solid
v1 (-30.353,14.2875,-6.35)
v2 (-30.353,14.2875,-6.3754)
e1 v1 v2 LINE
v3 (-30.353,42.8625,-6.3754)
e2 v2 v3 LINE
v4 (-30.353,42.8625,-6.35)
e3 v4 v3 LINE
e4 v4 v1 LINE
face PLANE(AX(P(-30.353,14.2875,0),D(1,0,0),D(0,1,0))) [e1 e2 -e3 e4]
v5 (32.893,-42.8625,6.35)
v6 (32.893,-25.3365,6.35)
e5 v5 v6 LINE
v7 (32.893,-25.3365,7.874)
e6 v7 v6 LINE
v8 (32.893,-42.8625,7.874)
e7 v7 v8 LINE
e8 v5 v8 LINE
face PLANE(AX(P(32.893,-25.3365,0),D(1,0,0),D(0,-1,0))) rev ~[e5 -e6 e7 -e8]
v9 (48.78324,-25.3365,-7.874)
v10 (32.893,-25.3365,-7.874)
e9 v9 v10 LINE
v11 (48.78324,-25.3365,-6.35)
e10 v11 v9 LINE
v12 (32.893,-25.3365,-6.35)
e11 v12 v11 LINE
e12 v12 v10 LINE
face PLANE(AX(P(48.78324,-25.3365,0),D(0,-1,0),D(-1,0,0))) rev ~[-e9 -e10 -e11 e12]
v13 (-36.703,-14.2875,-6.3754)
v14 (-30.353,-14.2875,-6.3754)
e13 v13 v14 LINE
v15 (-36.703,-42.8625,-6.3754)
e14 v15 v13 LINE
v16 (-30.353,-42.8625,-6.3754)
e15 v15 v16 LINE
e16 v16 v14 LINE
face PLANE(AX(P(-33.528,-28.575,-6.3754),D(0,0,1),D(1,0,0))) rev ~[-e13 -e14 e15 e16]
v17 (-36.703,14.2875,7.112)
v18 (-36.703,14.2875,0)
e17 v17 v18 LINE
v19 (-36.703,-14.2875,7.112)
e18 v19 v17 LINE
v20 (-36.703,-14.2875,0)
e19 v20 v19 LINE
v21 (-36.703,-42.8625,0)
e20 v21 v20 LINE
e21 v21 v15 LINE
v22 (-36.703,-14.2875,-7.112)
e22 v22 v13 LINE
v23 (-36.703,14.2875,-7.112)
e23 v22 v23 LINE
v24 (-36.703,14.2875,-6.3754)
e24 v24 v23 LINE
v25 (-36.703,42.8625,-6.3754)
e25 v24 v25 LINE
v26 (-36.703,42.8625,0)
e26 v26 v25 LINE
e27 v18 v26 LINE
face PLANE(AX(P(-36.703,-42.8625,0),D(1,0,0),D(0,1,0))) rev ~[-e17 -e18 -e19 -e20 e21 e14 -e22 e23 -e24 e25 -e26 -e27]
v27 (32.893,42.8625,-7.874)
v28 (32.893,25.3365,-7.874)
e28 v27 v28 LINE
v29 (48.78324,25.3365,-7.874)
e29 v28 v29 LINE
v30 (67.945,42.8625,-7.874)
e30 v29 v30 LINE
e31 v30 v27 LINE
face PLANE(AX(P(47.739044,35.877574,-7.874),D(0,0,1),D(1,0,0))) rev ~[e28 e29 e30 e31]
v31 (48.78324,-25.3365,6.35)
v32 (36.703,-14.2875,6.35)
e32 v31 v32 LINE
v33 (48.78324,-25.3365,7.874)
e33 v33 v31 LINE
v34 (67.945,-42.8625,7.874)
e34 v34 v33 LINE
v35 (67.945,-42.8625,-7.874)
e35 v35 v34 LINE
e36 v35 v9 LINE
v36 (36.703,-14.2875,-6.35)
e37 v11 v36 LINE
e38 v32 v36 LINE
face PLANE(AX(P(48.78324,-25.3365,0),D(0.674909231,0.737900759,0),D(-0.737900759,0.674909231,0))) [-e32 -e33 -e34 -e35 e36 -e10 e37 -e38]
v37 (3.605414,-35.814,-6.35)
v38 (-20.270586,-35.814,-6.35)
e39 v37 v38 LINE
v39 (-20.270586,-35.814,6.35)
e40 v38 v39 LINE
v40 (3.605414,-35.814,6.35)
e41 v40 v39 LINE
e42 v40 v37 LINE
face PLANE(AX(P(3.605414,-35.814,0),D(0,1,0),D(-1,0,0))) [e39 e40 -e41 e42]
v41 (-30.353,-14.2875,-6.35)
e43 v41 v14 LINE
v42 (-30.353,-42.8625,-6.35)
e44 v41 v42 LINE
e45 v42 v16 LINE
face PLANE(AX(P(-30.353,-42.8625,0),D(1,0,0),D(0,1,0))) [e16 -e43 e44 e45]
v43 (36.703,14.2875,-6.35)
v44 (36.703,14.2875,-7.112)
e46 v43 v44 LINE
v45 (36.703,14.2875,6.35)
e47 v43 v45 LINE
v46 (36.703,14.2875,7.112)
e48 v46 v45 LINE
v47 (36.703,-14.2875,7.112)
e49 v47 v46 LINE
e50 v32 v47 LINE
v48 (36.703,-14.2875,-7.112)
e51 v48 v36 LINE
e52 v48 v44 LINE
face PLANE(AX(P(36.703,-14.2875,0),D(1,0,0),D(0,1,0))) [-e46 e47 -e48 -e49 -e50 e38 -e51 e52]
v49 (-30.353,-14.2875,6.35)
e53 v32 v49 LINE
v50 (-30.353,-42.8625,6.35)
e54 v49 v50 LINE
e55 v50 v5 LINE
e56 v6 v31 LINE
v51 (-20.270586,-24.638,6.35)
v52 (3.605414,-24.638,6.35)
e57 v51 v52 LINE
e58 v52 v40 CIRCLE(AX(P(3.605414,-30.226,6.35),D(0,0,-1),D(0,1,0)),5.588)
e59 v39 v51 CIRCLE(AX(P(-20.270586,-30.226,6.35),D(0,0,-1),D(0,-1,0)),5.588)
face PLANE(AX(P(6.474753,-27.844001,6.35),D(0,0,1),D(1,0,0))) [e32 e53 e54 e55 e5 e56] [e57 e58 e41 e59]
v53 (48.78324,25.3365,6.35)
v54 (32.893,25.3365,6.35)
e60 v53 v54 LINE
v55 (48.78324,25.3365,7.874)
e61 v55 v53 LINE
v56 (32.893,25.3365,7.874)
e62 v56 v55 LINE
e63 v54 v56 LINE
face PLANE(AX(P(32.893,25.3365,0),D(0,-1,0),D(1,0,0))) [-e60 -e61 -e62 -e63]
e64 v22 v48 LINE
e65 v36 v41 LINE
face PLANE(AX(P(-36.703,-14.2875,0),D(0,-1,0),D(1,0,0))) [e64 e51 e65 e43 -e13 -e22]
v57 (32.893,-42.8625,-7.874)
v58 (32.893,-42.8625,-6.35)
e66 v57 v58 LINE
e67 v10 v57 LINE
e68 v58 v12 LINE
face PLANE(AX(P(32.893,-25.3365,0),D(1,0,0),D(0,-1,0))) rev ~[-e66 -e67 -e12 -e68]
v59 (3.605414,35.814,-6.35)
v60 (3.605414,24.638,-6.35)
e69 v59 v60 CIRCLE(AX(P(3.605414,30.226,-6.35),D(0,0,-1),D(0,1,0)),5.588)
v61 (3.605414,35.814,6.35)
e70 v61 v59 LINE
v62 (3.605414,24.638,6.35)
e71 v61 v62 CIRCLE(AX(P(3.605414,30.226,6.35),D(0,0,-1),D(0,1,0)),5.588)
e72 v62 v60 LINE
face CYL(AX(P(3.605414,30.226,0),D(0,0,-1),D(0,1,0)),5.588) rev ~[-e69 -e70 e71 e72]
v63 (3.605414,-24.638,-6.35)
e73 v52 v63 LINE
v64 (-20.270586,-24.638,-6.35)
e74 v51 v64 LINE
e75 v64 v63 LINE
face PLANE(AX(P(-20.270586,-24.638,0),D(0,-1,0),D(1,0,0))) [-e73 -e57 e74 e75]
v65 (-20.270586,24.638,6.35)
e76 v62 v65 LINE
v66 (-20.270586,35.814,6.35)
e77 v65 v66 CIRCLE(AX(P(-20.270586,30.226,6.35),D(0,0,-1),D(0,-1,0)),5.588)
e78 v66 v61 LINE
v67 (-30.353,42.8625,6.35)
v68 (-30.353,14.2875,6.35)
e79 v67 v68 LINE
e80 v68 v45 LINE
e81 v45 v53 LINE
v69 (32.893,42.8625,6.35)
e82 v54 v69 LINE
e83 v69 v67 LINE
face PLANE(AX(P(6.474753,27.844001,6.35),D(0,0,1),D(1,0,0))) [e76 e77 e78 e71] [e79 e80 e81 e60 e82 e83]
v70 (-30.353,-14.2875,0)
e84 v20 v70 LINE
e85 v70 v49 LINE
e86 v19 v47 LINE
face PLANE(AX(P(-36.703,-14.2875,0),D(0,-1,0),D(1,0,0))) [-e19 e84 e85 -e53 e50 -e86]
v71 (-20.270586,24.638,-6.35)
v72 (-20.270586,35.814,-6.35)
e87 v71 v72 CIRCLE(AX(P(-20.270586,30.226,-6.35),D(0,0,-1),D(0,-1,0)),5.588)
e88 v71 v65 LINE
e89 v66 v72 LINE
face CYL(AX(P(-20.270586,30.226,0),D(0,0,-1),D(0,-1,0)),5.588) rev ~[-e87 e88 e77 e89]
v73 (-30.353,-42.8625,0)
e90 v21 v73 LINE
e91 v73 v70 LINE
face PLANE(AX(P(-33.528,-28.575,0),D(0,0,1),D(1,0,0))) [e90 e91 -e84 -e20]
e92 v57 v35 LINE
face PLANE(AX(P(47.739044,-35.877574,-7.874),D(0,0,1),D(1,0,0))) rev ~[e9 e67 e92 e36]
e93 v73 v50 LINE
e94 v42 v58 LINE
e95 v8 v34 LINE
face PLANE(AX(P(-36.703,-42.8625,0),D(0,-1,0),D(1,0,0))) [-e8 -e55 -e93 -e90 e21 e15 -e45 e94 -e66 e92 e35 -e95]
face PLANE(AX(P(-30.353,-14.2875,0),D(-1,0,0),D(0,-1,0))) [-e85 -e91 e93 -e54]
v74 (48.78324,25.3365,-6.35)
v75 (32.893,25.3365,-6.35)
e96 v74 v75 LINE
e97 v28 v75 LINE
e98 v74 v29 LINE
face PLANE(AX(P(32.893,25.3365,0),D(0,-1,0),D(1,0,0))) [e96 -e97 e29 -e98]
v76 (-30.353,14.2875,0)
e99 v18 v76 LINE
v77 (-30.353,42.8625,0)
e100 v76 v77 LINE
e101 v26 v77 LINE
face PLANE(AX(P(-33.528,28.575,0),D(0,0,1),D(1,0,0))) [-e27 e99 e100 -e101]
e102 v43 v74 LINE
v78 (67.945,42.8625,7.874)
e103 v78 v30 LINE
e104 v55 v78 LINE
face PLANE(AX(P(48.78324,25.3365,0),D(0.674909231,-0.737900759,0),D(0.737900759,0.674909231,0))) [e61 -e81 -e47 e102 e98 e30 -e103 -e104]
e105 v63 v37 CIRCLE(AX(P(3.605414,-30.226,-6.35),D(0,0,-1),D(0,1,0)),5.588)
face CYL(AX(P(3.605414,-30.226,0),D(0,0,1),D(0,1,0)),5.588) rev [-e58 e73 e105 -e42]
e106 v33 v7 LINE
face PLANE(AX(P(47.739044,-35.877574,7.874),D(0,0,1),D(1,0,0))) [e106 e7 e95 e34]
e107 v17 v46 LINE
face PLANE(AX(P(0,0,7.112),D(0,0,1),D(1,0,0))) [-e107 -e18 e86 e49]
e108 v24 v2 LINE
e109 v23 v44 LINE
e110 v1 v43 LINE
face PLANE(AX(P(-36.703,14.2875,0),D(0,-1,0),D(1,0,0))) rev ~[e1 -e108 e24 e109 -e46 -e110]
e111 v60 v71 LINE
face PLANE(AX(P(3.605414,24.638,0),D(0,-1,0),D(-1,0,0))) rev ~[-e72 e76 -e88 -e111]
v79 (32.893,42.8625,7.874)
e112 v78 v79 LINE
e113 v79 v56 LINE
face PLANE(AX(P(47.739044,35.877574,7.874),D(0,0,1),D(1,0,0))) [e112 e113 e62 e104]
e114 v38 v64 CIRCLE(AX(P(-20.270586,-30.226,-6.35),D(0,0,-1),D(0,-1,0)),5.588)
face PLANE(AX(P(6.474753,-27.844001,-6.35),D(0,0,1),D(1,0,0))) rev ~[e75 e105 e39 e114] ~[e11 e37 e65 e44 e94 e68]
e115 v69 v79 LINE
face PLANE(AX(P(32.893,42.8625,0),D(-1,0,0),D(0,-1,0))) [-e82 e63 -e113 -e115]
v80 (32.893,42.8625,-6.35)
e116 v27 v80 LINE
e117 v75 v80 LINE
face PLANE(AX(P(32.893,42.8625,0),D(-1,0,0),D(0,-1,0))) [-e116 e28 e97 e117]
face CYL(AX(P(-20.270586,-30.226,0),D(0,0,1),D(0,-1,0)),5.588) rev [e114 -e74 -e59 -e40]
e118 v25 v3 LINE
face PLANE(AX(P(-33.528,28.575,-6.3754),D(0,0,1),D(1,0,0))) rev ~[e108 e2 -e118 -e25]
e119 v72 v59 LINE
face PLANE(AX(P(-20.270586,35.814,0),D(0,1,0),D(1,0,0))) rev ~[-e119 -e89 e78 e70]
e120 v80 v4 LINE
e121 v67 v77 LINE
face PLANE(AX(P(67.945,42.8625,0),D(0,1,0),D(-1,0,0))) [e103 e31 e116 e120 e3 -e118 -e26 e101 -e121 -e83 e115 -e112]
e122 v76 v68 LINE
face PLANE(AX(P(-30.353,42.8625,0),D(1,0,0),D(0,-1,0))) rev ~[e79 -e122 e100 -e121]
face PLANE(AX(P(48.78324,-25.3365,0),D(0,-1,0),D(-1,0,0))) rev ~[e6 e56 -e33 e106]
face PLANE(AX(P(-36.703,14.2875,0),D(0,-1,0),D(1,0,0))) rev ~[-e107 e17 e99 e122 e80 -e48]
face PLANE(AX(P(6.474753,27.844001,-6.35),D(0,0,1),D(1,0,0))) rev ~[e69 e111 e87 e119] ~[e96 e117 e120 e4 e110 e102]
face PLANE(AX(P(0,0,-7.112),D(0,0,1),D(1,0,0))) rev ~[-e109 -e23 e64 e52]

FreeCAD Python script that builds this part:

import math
import FreeCAD as App
import Part
import Sketcher
Q = App.Units.Quantity

doc = App.newDocument("Part")
body = doc.addObject("PartDesign::Body", "Body")

# Sketch on XY plane
sketch1 = doc.addObject("Sketcher::SketchObject", "Sketch")
body.addObject(sketch1)
sketch1.AttachmentSupport = (doc.XY_Plane, [""])
sketch1.MapMode = "FlatFace"
sketch1.addGeometry([
    Part.LineSegment(App.Vector(-37, 14, 0), App.Vector(-37, -14, 0)),
    Part.LineSegment(App.Vector(-37, -14, 0), App.Vector(37, -14, 0)),
    Part.LineSegment(App.Vector(37, -14, 0), App.Vector(37, 14, 0)),
    Part.LineSegment(App.Vector(37, 14, 0), App.Vector(-37, 14, 0)),
], False)
sketch1.addConstraint([
    Sketcher.Constraint("Coincident", 0, 2, 1, 1),
    Sketcher.Constraint("Coincident", 1, 2, 2, 1),
    Sketcher.Constraint("Coincident", 2, 2, 3, 1),
    Sketcher.Constraint("Coincident", 3, 2, 0, 1),
    Sketcher.Constraint("Vertical", 0),
    Sketcher.Constraint("Horizontal", 1),
    Sketcher.Constraint("Vertical", 2),
    Sketcher.Constraint("Horizontal", 3),
    Sketcher.Constraint("Symmetric", 0, 2, 2, 2, -1, 1),
    Sketcher.Constraint("DistanceX", 1, 1, 1, 2, Q("2.89 in")),
    Sketcher.Constraint("DistanceY", 0, 2, 0, 1, Q("1.125 in")),
])
pad1 = doc.addObject("PartDesign::Pad", "Pad")
body.addObject(pad1)
pad1.Profile = sketch1
pad1.Length = Q("0.56 in")
pad1.Midplane = True

# Sketch on XY plane
sketch2 = doc.addObject("Sketcher::SketchObject", "Sketch001")
body.addObject(sketch2)
sketch2.AttachmentSupport = (doc.XY_Plane, [""])
sketch2.MapMode = "FlatFace"
sketch2.addGeometry([
    Part.LineSegment(App.Vector(-30, 43, 0), App.Vector(-30, 14, 0)),  # 0
    Part.LineSegment(App.Vector(-30, 14, 0), App.Vector(37, 14, 0)),  # 1
    Part.LineSegment(App.Vector(37, 14, 0), App.Vector(49, 25, 0)),  # 2
    Part.LineSegment(App.Vector(49, 25, 0), App.Vector(33, 25, 0)),  # 3
    Part.LineSegment(App.Vector(33, 25, 0), App.Vector(33, 43, 0)),  # 4
    Part.LineSegment(App.Vector(33, 43, 0), App.Vector(-30, 43, 0)),  # 5
    Part.LineSegment(App.Vector(4, 25, 0), App.Vector(-20, 25, 0)),  # 6
    Part.ArcOfCircle(Part.Circle(App.Vector(-20, 30, 0), App.Vector(0, 0, 1), 6), math.radians(90), math.radians(270)),  # 7
    Part.LineSegment(App.Vector(-20, 36, 0), App.Vector(4, 36, 0)),  # 8
    Part.ArcOfCircle(Part.Circle(App.Vector(4, 30, 0), App.Vector(0, 0, 1), 6), math.radians(-90), math.radians(90)),  # 9
    Part.LineSegment(App.Vector(37, -14, 0), App.Vector(-30, -14, 0)),  # 10
    Part.LineSegment(App.Vector(-30, -14, 0), App.Vector(-30, -43, 0)),  # 11
    Part.LineSegment(App.Vector(-30, -43, 0), App.Vector(33, -43, 0)),  # 12
    Part.LineSegment(App.Vector(33, -43, 0), App.Vector(33, -25, 0)),  # 13
    Part.LineSegment(App.Vector(33, -25, 0), App.Vector(49, -25, 0)),  # 14
    Part.LineSegment(App.Vector(49, -25, 0), App.Vector(37, -14, 0)),  # 15
    Part.LineSegment(App.Vector(4, -36, 0), App.Vector(-20, -36, 0)),  # 16
    Part.ArcOfCircle(Part.Circle(App.Vector(-20, -30, 0), App.Vector(0, 0, 1), 6), math.radians(90), math.radians(270)),  # 17
    Part.LineSegment(App.Vector(-20, -25, 0), App.Vector(4, -25, 0)),  # 18
    Part.ArcOfCircle(Part.Circle(App.Vector(4, -30, 0), App.Vector(0, 0, 1), 6), math.radians(-90), math.radians(90)),  # 19
], False)
sketch2.addConstraint([
    Sketcher.Constraint("Coincident", 0, 2, 1, 1),
    Sketcher.Constraint("Coincident", 1, 2, 2, 1),
    Sketcher.Constraint("Coincident", 2, 2, 3, 1),
    Sketcher.Constraint("Coincident", 3, 2, 4, 1),
    Sketcher.Constraint("Coincident", 4, 2, 5, 1),
    Sketcher.Constraint("Coincident", 5, 2, 0, 1),
    Sketcher.Constraint("Tangent", 6, 2, 7, 2),
    Sketcher.Constraint("Tangent", 7, 1, 8, 1),
    Sketcher.Constraint("Tangent", 8, 2, 9, 2),
    Sketcher.Constraint("Tangent", 9, 1, 6, 1),
    Sketcher.Constraint("Coincident", 10, 2, 11, 1),
    Sketcher.Constraint("Coincident", 11, 2, 12, 1),
    Sketcher.Constraint("Coincident", 12, 2, 13, 1),
    Sketcher.Constraint("Coincident", 13, 2, 14, 1),
    Sketcher.Constraint("Coincident", 14, 2, 15, 1),
    Sketcher.Constraint("Coincident", 15, 2, 10, 1),
    Sketcher.Constraint("Tangent", 16, 2, 17, 2),
    Sketcher.Constraint("Tangent", 17, 1, 18, 1),
    Sketcher.Constraint("Tangent", 18, 2, 19, 2),
    Sketcher.Constraint("Tangent", 19, 1, 16, 1),
    Sketcher.Constraint("Vertical", 0),
    Sketcher.Constraint("Horizontal", 1),
    Sketcher.Constraint("Horizontal", 3),
    Sketcher.Constraint("Vertical", 4),
    Sketcher.Constraint("Horizontal", 5),
    Sketcher.Constraint("Horizontal", 6),
    Sketcher.Constraint("Horizontal", 8),
    Sketcher.Constraint("Horizontal", 10),
    Sketcher.Constraint("Vertical", 11),
    Sketcher.Constraint("Horizontal", 12),
    Sketcher.Constraint("Vertical", 13),
    Sketcher.Constraint("Horizontal", 14),
    Sketcher.Constraint("Horizontal", 16),
    Sketcher.Constraint("Horizontal", 18),
    Sketcher.Constraint("Equal", 9, 17),
    Sketcher.Constraint("Symmetric", 7, 3, 17, 3, -1),
    Sketcher.Constraint("Symmetric", 0, 2, 10, 2, -1),
    Sketcher.Constraint("Symmetric", 4, 2, 12, 2, -1),
    Sketcher.Constraint("Symmetric", 2, 2, 14, 2, -1),
    Sketcher.Constraint("Vertical", 9, 3, 19, 3),
    Sketcher.Constraint("Vertical", 1, 2, 15, 2),
    Sketcher.Constraint("Radius", 7, Q("0.22 in")),
    Sketcher.Constraint("DistanceX", 1, 1, 1, 2, Q("2.64 in")),
    Sketcher.Constraint("DistanceX", 5, 2, 5, 1, Q("2.49 in")),
    Sketcher.Constraint("DistanceX", 6, 2, 6, 1, Q("0.94 in")),
    Sketcher.Constraint("DistanceY", 4, 1, 4, 2, Q("0.69 in")),
    Sketcher.Constraint("DistanceY", 0, 2, 0, 1, Q("1.125 in")),
    Sketcher.Constraint("DistanceY", -1, 1, 7, 3, Q("1.19 in")),
    Sketcher.Constraint("DistanceY", 11, 2, 0, 2, Q("2.25 in")),
    Sketcher.Constraint("DistanceX", 3, 2, 3, 1, Q("0.6256 in")),
    Sketcher.Constraint("DistanceX", 0, 2, -1, 1, Q("1.195 in")),
    Sketcher.Constraint("DistanceX", 7, 3, -1, 1, Q("20.270586 mm")),
])
pad2 = doc.addObject("PartDesign::Pad", "Pad001")
body.addObject(pad2)
pad2.Profile = sketch2
pad2.Length = Q("0.5 in")
pad2.Midplane = True

# Sketch on XY plane
sketch3 = doc.addObject("Sketcher::SketchObject", "Sketch002")
body.addObject(sketch3)
sketch3.AttachmentSupport = (doc.XY_Plane, [""])
sketch3.MapMode = "FlatFace"
sketch3.addGeometry([
    Part.LineSegment(App.Vector(-37, -14, 0), App.Vector(-37, -43, 0)),  # 0
    Part.LineSegment(App.Vector(-37, -43, 0), App.Vector(-30, -43, 0)),  # 1
    Part.LineSegment(App.Vector(-30, -43, 0), App.Vector(-30, -14, 0)),  # 2
    Part.LineSegment(App.Vector(-30, -14, 0), App.Vector(-37, -14, 0)),  # 3
    Part.LineSegment(App.Vector(-37, 43, 0), App.Vector(-37, 14, 0)),  # 4
    Part.LineSegment(App.Vector(-37, 14, 0), App.Vector(-30, 14, 0)),  # 5
    Part.LineSegment(App.Vector(-30, 14, 0), App.Vector(-30, 43, 0)),  # 6
    Part.LineSegment(App.Vector(-30, 43, 0), App.Vector(-37, 43, 0)),  # 7
], False)
sketch3.addConstraint([
    Sketcher.Constraint("Coincident", 0, 2, 1, 1),
    Sketcher.Constraint("Coincident", 1, 2, 2, 1),
    Sketcher.Constraint("Coincident", 2, 2, 3, 1),
    Sketcher.Constraint("Coincident", 3, 2, 0, 1),
    Sketcher.Constraint("Coincident", 4, 2, 5, 1),
    Sketcher.Constraint("Coincident", 5, 2, 6, 1),
    Sketcher.Constraint("Coincident", 6, 2, 7, 1),
    Sketcher.Constraint("Coincident", 7, 2, 4, 1),
    Sketcher.Constraint("Vertical", 0),
    Sketcher.Constraint("Horizontal", 1),
    Sketcher.Constraint("Vertical", 2),
    Sketcher.Constraint("Horizontal", 3),
    Sketcher.Constraint("Vertical", 4),
    Sketcher.Constraint("Horizontal", 5),
    Sketcher.Constraint("Vertical", 6),
    Sketcher.Constraint("Horizontal", 7),
    Sketcher.Constraint("Symmetric", 3, 2, 4, 2, -1),
    Sketcher.Constraint("Symmetric", 1, 2, 6, 2, -1),
    Sketcher.Constraint("DistanceX", 1, 1, 1, 2, Q("0.25 in")),
    Sketcher.Constraint("DistanceY", 0, 2, 0, 1, Q("1.125 in")),
    Sketcher.Constraint("DistanceY", 0, 2, 4, 2, Q("2.25 in")),
    Sketcher.Constraint("DistanceX", 0, 2, -1, 1, Q("1.445 in")),
])
pad3 = doc.addObject("PartDesign::Pad", "Pad002")
body.addObject(pad3)
pad3.Profile = sketch3
pad3.Length = Q("0.251 in")
pad3.Reversed = True

# Sketch on XY plane
sketch4 = doc.addObject("Sketcher::SketchObject", "Sketch003")
body.addObject(sketch4)
sketch4.AttachmentSupport = (doc.XY_Plane, [""])
sketch4.MapMode = "FlatFace"
sketch4.addGeometry([
    Part.LineSegment(App.Vector(33, -25, 0), App.Vector(33, -43, 0)),  # 0
    Part.LineSegment(App.Vector(33, -43, 0), App.Vector(68, -43, 0)),  # 1
    Part.LineSegment(App.Vector(68, -43, 0), App.Vector(49, -25, 0)),  # 2
    Part.LineSegment(App.Vector(49, -25, 0), App.Vector(33, -25, 0)),  # 3
    Part.LineSegment(App.Vector(68, 43, 0), App.Vector(33, 43, 0)),  # 4
    Part.LineSegment(App.Vector(33, 43, 0), App.Vector(33, 25, 0)),  # 5
    Part.LineSegment(App.Vector(33, 25, 0), App.Vector(49, 25, 0)),  # 6
    Part.LineSegment(App.Vector(49, 25, 0), App.Vector(68, 43, 0)),  # 7
], False)
sketch4.addConstraint([
    Sketcher.Constraint("Coincident", 0, 2, 1, 1),
    Sketcher.Constraint("Coincident", 1, 2, 2, 1),
    Sketcher.Constraint("Coincident", 2, 2, 3, 1),
    Sketcher.Constraint("Coincident", 3, 2, 0, 1),
    Sketcher.Constraint("Coincident", 4, 2, 5, 1),
    Sketcher.Constraint("Coincident", 5, 2, 6, 1),
    Sketcher.Constraint("Coincident", 6, 2, 7, 1),
    Sketcher.Constraint("Coincident", 7, 2, 4, 1),
    Sketcher.Constraint("Vertical", 0),
    Sketcher.Constraint("Horizontal", 1),
    Sketcher.Constraint("Horizontal", 3),
    Sketcher.Constraint("Horizontal", 4),
    Sketcher.Constraint("Vertical", 5),
    Sketcher.Constraint("Horizontal", 6),
    Sketcher.Constraint("Symmetric", 0, 2, 4, 2, -1),
    Sketcher.Constraint("Symmetric", 2, 2, 6, 2, -1),
    Sketcher.Constraint("Vertical", 1, 2, 7, 2),
    Sketcher.Constraint("DistanceX", 1, 1, 1, 2, Q("1.38 in")),
    Sketcher.Constraint("DistanceY", 0, 2, 0, 1, Q("0.69 in")),
    Sketcher.Constraint("DistanceX", 3, 2, 3, 1, Q("0.6256 in")),
    Sketcher.Constraint("DistanceX", -1, 1, 0, 2, Q("1.295 in")),
    Sketcher.Constraint("DistanceY", 0, 2, -1, 1, Q("1.6875 in")),
])
pad4 = doc.addObject("PartDesign::Pad", "Pad003")
body.addObject(pad4)
pad4.Profile = sketch4
pad4.Length = Q("0.62 in")
pad4.Midplane = True

doc.recompute()
